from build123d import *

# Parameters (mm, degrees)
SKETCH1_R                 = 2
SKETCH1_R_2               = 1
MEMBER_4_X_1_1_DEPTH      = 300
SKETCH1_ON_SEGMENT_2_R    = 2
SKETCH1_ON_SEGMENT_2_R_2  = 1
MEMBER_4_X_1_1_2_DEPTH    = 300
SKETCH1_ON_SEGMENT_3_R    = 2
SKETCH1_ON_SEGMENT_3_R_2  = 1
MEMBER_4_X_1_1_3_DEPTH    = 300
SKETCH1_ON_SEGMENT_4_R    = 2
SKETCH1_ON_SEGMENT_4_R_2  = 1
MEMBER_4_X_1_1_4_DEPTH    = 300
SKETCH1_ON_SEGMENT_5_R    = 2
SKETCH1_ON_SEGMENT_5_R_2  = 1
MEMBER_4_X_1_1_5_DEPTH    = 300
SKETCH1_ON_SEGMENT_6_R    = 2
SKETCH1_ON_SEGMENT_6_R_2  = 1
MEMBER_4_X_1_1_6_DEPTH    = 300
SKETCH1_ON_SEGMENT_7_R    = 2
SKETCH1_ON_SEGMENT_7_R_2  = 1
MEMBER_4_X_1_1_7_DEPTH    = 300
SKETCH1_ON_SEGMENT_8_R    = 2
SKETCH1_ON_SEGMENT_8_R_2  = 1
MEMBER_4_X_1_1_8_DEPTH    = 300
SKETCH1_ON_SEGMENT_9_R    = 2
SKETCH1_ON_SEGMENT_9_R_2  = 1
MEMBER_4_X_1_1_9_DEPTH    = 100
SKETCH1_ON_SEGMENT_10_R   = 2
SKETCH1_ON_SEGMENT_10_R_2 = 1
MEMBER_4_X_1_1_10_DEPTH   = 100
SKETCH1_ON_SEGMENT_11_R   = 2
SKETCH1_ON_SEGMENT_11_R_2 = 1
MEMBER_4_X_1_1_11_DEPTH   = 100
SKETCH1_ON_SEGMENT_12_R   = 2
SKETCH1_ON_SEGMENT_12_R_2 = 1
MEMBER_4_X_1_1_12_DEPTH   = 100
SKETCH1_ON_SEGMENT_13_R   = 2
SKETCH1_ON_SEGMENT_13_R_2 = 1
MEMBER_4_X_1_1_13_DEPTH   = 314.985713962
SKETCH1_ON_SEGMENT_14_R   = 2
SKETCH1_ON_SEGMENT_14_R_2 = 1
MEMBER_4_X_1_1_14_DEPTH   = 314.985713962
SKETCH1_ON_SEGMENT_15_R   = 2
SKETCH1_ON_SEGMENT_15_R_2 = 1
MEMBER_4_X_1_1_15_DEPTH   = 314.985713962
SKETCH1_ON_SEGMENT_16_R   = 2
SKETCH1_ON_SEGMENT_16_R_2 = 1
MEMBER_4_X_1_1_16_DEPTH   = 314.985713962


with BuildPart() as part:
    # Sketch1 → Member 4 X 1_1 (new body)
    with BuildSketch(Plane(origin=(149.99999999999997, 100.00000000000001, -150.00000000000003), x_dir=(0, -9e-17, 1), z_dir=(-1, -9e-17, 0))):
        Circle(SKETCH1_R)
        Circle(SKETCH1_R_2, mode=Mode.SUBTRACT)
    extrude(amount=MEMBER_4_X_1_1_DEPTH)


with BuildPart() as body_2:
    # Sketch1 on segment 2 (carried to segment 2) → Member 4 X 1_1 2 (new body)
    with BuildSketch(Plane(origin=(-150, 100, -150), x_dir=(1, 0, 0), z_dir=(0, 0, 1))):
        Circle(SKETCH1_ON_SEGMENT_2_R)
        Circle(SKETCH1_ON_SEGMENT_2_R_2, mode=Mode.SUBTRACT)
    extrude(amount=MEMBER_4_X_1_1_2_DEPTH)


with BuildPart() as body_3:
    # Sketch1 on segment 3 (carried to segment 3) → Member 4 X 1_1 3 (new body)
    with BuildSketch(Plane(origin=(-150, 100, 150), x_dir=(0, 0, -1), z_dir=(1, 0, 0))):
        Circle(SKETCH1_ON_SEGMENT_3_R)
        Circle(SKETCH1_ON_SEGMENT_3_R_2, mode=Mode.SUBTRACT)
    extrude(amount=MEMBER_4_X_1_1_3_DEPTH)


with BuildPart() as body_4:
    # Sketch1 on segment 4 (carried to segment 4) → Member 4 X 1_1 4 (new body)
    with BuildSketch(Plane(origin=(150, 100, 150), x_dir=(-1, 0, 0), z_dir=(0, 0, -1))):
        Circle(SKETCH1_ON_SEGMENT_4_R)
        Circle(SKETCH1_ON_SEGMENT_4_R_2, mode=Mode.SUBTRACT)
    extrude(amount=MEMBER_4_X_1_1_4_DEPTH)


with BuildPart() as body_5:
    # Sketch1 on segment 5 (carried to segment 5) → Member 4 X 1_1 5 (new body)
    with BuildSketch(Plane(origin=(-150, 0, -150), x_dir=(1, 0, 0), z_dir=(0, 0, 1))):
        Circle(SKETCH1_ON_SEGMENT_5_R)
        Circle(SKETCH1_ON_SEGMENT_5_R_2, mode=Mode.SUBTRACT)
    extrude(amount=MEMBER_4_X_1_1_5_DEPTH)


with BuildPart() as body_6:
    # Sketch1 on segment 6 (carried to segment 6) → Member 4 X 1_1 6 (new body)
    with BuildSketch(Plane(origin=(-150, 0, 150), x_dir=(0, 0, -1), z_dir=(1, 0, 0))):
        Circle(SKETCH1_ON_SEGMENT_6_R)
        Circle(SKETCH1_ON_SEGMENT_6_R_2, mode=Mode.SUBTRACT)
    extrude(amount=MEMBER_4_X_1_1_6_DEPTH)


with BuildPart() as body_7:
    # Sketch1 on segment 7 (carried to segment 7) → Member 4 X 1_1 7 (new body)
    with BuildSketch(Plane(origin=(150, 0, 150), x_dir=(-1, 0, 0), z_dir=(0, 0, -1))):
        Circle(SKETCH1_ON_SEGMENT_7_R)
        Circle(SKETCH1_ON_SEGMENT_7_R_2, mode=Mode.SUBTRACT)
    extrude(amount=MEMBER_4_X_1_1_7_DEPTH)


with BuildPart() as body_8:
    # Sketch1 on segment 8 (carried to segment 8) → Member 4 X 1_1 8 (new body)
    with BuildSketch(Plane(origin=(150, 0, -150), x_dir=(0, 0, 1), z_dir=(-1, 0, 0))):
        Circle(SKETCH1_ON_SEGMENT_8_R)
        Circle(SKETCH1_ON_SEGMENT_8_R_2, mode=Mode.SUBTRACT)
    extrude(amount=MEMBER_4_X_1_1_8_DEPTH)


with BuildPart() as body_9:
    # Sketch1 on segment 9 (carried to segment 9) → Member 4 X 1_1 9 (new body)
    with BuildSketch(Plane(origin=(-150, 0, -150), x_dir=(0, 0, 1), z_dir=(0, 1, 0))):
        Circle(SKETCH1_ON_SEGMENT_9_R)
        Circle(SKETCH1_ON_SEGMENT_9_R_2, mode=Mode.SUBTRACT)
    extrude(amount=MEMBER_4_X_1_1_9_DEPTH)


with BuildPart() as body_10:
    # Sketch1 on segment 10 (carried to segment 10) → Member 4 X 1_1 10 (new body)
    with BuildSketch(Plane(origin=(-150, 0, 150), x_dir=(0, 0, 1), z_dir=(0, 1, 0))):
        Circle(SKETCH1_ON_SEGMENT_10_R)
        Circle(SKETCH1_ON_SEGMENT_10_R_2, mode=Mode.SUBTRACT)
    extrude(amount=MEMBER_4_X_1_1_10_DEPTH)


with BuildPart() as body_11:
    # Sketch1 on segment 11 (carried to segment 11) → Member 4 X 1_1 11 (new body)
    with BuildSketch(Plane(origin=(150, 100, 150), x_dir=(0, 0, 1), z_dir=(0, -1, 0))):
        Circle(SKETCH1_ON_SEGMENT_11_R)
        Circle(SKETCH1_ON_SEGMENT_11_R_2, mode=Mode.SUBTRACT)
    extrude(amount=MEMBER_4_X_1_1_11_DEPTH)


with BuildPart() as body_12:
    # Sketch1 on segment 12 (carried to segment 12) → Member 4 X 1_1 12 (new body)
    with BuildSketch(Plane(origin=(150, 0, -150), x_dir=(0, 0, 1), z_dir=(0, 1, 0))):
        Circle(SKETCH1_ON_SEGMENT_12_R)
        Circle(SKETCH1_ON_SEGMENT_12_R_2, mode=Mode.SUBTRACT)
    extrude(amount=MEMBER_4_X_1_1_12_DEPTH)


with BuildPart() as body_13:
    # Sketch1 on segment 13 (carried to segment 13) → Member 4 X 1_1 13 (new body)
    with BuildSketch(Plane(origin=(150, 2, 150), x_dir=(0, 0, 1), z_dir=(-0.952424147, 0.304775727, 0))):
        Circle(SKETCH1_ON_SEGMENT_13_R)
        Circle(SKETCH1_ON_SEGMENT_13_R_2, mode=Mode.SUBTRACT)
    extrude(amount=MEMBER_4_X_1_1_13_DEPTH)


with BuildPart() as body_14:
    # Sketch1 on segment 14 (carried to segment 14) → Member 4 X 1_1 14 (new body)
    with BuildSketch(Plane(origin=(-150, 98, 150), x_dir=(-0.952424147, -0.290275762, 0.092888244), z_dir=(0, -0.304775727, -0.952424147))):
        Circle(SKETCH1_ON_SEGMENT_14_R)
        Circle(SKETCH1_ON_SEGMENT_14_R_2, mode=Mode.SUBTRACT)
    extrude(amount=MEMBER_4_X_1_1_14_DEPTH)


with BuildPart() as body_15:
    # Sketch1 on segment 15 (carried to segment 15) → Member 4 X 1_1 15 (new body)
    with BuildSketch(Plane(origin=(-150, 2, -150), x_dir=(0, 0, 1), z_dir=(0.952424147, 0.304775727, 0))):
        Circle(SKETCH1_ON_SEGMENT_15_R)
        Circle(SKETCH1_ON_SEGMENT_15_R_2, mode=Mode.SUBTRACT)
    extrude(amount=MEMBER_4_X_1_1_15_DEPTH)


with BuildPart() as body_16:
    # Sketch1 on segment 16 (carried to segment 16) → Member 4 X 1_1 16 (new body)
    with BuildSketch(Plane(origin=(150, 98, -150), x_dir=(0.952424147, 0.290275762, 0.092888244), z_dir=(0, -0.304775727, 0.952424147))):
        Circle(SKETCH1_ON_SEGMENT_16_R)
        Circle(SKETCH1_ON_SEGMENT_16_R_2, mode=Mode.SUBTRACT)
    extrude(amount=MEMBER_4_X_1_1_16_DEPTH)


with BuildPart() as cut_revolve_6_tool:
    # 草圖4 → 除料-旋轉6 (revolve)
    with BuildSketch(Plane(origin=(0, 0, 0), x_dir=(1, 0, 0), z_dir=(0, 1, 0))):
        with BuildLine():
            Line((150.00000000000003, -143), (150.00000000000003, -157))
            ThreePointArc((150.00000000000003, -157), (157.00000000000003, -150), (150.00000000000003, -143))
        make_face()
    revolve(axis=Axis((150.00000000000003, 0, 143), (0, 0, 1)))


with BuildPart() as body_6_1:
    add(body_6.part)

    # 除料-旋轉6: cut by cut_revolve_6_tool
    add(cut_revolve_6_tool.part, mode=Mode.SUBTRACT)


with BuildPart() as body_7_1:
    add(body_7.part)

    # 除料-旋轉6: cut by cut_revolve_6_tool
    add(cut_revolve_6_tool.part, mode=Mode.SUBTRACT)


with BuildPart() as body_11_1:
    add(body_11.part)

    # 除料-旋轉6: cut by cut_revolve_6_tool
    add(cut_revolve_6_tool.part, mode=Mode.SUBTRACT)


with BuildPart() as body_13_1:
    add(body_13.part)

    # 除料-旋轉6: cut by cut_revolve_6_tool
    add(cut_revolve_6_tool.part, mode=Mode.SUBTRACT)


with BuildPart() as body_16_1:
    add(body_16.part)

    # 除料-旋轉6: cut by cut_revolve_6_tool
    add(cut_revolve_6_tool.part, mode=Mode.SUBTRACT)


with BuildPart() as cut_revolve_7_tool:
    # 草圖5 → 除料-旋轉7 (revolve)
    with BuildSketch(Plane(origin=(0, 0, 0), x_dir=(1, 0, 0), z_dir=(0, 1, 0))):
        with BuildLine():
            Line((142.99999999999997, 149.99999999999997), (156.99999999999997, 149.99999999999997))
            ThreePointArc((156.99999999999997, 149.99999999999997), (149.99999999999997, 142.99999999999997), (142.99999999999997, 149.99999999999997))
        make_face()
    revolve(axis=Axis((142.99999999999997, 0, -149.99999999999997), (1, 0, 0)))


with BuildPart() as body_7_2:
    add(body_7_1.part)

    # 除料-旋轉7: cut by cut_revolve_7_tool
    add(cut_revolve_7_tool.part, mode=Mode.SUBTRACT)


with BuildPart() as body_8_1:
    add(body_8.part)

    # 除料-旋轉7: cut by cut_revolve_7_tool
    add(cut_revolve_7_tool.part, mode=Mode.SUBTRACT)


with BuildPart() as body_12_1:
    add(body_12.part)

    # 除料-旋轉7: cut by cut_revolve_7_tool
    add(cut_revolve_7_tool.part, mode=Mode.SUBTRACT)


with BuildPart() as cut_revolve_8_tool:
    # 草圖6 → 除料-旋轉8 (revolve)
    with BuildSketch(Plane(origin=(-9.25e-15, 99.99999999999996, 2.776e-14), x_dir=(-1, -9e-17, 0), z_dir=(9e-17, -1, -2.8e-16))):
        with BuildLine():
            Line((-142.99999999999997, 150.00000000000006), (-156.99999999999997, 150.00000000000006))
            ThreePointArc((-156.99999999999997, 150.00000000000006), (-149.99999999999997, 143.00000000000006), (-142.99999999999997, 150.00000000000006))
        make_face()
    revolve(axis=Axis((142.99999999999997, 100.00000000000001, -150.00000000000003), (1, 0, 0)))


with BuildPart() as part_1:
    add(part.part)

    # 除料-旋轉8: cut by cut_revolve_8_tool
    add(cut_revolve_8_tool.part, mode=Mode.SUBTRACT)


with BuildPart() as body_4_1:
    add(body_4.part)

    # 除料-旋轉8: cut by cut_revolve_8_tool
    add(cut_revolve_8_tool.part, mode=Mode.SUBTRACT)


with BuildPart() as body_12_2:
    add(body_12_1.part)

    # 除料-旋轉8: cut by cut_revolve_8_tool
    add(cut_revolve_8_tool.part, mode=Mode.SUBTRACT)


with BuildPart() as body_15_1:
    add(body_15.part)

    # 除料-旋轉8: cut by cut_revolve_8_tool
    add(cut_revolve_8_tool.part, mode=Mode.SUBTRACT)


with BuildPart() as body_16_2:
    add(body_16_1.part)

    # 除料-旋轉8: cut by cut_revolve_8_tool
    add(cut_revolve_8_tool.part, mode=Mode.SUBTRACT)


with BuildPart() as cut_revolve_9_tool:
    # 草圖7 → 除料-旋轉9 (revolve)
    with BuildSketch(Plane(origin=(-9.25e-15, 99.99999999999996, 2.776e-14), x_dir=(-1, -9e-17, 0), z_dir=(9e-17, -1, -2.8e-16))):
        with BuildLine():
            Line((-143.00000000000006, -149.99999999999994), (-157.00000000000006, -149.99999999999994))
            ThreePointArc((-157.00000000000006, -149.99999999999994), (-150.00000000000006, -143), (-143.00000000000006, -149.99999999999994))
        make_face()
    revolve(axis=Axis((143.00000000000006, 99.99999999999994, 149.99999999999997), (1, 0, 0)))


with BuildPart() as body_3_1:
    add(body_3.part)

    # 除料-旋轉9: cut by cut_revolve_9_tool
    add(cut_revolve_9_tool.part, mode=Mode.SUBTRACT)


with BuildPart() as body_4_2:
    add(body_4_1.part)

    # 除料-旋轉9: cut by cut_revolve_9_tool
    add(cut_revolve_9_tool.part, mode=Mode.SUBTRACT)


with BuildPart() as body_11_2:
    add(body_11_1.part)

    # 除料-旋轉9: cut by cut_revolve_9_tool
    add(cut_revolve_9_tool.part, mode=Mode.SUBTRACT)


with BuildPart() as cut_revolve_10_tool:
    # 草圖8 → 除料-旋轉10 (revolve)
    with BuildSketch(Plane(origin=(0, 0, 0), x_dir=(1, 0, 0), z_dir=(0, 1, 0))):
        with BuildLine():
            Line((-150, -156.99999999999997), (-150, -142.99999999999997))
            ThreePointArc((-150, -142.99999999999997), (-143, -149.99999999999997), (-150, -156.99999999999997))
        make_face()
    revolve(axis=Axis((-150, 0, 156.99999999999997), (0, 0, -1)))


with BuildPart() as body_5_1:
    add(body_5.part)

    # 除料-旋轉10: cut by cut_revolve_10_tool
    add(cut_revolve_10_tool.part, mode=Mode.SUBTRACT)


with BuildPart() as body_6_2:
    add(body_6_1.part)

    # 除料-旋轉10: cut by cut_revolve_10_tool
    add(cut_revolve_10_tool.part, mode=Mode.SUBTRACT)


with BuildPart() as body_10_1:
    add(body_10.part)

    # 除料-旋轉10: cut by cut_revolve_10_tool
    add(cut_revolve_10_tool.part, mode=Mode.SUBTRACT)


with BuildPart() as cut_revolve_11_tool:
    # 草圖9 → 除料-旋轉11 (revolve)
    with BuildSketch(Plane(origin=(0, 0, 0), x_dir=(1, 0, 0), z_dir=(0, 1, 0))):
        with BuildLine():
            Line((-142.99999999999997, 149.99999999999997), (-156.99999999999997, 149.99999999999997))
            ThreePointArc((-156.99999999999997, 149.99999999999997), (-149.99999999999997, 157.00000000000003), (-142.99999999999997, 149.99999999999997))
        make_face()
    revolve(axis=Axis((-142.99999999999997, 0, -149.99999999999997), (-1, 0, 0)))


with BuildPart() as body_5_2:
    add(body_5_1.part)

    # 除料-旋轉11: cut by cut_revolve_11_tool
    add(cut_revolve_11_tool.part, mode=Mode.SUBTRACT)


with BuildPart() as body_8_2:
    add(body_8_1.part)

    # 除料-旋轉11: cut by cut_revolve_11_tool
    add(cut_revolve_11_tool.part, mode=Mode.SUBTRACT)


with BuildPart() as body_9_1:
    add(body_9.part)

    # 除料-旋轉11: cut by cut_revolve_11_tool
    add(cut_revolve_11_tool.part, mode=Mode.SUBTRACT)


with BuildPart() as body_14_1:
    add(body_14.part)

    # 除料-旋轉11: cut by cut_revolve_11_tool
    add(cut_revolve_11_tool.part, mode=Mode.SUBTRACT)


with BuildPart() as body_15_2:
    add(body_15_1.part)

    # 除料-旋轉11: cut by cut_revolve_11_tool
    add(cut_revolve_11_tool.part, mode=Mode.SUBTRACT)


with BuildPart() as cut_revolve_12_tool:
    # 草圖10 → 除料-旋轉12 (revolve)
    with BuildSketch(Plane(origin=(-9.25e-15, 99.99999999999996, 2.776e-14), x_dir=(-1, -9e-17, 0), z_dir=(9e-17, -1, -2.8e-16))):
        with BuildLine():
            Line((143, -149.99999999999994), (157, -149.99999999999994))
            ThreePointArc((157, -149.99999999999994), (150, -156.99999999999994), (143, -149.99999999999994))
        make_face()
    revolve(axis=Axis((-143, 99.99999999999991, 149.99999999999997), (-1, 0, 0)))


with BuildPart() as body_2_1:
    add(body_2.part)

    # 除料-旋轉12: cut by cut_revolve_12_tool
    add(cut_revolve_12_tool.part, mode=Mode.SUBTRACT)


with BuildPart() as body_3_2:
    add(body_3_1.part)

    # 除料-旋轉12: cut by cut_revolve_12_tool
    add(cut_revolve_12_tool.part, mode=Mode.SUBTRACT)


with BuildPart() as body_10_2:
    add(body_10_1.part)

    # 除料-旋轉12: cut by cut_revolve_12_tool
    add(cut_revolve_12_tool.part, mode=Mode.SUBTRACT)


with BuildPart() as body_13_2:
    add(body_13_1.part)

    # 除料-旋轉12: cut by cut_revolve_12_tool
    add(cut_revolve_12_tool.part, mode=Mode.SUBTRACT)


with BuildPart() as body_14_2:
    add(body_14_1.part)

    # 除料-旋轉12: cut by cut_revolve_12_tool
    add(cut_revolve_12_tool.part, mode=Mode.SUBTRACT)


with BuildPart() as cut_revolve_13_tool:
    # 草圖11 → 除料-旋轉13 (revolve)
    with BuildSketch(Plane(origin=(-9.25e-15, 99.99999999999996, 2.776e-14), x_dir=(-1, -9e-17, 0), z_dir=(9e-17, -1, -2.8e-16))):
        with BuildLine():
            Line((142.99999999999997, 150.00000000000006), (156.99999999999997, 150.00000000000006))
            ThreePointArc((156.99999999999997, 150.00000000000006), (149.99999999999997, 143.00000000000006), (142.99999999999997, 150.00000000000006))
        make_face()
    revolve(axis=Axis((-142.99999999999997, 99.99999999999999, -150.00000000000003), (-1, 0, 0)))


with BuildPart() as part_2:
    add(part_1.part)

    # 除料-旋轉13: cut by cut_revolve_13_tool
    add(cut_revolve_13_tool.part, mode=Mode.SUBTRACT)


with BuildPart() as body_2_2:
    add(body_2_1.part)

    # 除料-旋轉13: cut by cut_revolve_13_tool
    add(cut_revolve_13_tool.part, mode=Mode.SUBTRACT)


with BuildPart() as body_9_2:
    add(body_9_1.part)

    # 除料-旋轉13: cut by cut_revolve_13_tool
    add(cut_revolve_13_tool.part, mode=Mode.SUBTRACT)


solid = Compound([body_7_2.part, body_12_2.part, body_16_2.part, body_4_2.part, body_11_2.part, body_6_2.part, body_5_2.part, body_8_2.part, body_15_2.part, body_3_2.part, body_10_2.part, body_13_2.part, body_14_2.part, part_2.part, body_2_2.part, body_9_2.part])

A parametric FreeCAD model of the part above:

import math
import FreeCAD as App
import Part
import Sketcher
from FreeCAD import Vector

doc = App.newDocument("Part")
body = doc.addObject("PartDesign::Body", "Body")

sketch1 = body.newObject("Sketcher::SketchObject", "Sketch")
sketch1.AttachmentSupport = (doc.getObject("YZ_Plane"), [""])
sketch1.MapMode = "FlatFace"
sketch1.AttachmentOffset = App.Placement(Vector(0, 0, 150), App.Rotation())
sketch1.addGeometry([
    Part.Circle(Vector(100, -150, 0), Vector(0, 0, 1), 2),
    Part.Circle(Vector(100, -150, 0), Vector(0, 0, 1), 1),
], False)
sketch1.addConstraint([
    Sketcher.Constraint("Coincident", 1, 3, 0, 3),
    Sketcher.Constraint("Diameter", 0, 4.0),
    Sketcher.Constraint("Diameter", 1, 2.0),
    Sketcher.Constraint("DistanceX", -1, 1, 0, 3, 100.0),
    Sketcher.Constraint("DistanceY", 0, 3, -1, 1, 150.0),
])
pad1 = body.newObject("PartDesign::Pad", "Pad")
pad1.Profile = sketch1
pad1.Length = 300
pad1.Reversed = True
body2 = doc.addObject("PartDesign::Body", "Body001")

sketch2 = body2.newObject("Sketcher::SketchObject", "Sketch001")
sketch2.AttachmentSupport = (doc.getObject("XY_Plane001"), [""])
sketch2.MapMode = "FlatFace"
sketch2.AttachmentOffset = App.Placement(Vector(0, 0, -150), App.Rotation())
sketch2.addGeometry([
    Part.Circle(Vector(-150, 100, 0), Vector(0, 0, 1), 2),
    Part.Circle(Vector(-150, 100, 0), Vector(0, 0, 1), 1),
], False)
sketch2.addConstraint([
    Sketcher.Constraint("Coincident", 1, 3, 0, 3),
    Sketcher.Constraint("Diameter", 0, 4.0),
    Sketcher.Constraint("Diameter", 1, 2.0),
    Sketcher.Constraint("DistanceX", 0, 3, -1, 1, 150.0),
    Sketcher.Constraint("DistanceY", -1, 1, 0, 3, 100.0),
])
pad2 = body2.newObject("PartDesign::Pad", "Pad001")
pad2.Profile = sketch2
pad2.Length = 300
body3 = doc.addObject("PartDesign::Body", "Body002")

sketch3 = body3.newObject("Sketcher::SketchObject", "Sketch002")
sketch3.AttachmentSupport = (doc.getObject("YZ_Plane002"), [""])
sketch3.MapMode = "FlatFace"
sketch3.AttachmentOffset = App.Placement(Vector(0, 0, -150), App.Rotation())
sketch3.addGeometry([
    Part.Circle(Vector(100, 150, 0), Vector(0, 0, 1), 2),
    Part.Circle(Vector(100, 150, 0), Vector(0, 0, 1), 1),
], False)
sketch3.addConstraint([
    Sketcher.Constraint("Coincident", 1, 3, 0, 3),
    Sketcher.Constraint("Diameter", 0, 4.0),
    Sketcher.Constraint("Diameter", 1, 2.0),
    Sketcher.Constraint("DistanceX", -1, 1, 0, 3, 100.0),
    Sketcher.Constraint("DistanceY", -1, 1, 0, 3, 150.0),
])
pad3 = body3.newObject("PartDesign::Pad", "Pad002")
pad3.Profile = sketch3
pad3.Length = 300
body4 = doc.addObject("PartDesign::Body", "Body003")

sketch4 = body4.newObject("Sketcher::SketchObject", "Sketch003")
sketch4.AttachmentSupport = (doc.getObject("XY_Plane003"), [""])
sketch4.MapMode = "FlatFace"
sketch4.AttachmentOffset = App.Placement(Vector(0, 0, 150), App.Rotation())
sketch4.addGeometry([
    Part.Circle(Vector(150, 100, 0), Vector(0, 0, 1), 2),
    Part.Circle(Vector(150, 100, 0), Vector(0, 0, 1), 1),
], False)
sketch4.addConstraint([
    Sketcher.Constraint("Coincident", 1, 3, 0, 3),
    Sketcher.Constraint("Diameter", 0, 4.0),
    Sketcher.Constraint("Diameter", 1, 2.0),
    Sketcher.Constraint("DistanceX", -1, 1, 0, 3, 150.0),
    Sketcher.Constraint("DistanceY", -1, 1, 0, 3, 100.0),
])
pad4 = body4.newObject("PartDesign::Pad", "Pad003")
pad4.Profile = sketch4
pad4.Length = 300
pad4.Reversed = True
body5 = doc.addObject("PartDesign::Body", "Body004")

sketch5 = body5.newObject("Sketcher::SketchObject", "Sketch004")
sketch5.AttachmentSupport = (doc.getObject("XY_Plane004"), [""])
sketch5.MapMode = "FlatFace"
sketch5.AttachmentOffset = App.Placement(Vector(0, 0, -150), App.Rotation())
sketch5.addGeometry([
    Part.Circle(Vector(-150, 0, 0), Vector(0, 0, 1), 2),
    Part.Circle(Vector(-150, 0, 0), Vector(0, 0, 1), 1),
], False)
sketch5.addConstraint([
    Sketcher.Constraint("Coincident", 1, 3, 0, 3),
    Sketcher.Constraint("PointOnObject", 0, 3, -1),
    Sketcher.Constraint("Diameter", 0, 4.0),
    Sketcher.Constraint("Diameter", 1, 2.0),
    Sketcher.Constraint("DistanceX", 0, 3, -1, 1, 150.0),
])
pad5 = body5.newObject("PartDesign::Pad", "Pad004")
pad5.Profile = sketch5
pad5.Length = 300
body6 = doc.addObject("PartDesign::Body", "Body005")

sketch6 = body6.newObject("Sketcher::SketchObject", "Sketch005")
sketch6.AttachmentSupport = (doc.getObject("YZ_Plane005"), [""])
sketch6.MapMode = "FlatFace"
sketch6.AttachmentOffset = App.Placement(Vector(0, 0, -150), App.Rotation())
sketch6.addGeometry([
    Part.Circle(Vector(0, 150, 0), Vector(0, 0, 1), 2),
    Part.Circle(Vector(0, 150, 0), Vector(0, 0, 1), 1),
], False)
sketch6.addConstraint([
    Sketcher.Constraint("Coincident", 1, 3, 0, 3),
    Sketcher.Constraint("PointOnObject", 0, 3, -2),
    Sketcher.Constraint("Diameter", 0, 4.0),
    Sketcher.Constraint("Diameter", 1, 2.0),
    Sketcher.Constraint("DistanceY", -1, 1, 0, 3, 150.0),
])
pad6 = body6.newObject("PartDesign::Pad", "Pad005")
pad6.Profile = sketch6
pad6.Length = 300
body7 = doc.addObject("PartDesign::Body", "Body006")

sketch7 = body7.newObject("Sketcher::SketchObject", "Sketch006")
sketch7.AttachmentSupport = (doc.getObject("XY_Plane006"), [""])
sketch7.MapMode = "FlatFace"
sketch7.AttachmentOffset = App.Placement(Vector(0, 0, 150), App.Rotation())
sketch7.addGeometry([
    Part.Circle(Vector(150, 0, 0), Vector(0, 0, 1), 2),
    Part.Circle(Vector(150, 0, 0), Vector(0, 0, 1), 1),
], False)
sketch7.addConstraint([
    Sketcher.Constraint("Coincident", 1, 3, 0, 3),
    Sketcher.Constraint("PointOnObject", 0, 3, -1),
    Sketcher.Constraint("Diameter", 0, 4.0),
    Sketcher.Constraint("Diameter", 1, 2.0),
    Sketcher.Constraint("DistanceX", -1, 1, 0, 3, 150.0),
])
pad7 = body7.newObject("PartDesign::Pad", "Pad006")
pad7.Profile = sketch7
pad7.Length = 300
pad7.Reversed = True
body8 = doc.addObject("PartDesign::Body", "Body007")

sketch8 = body8.newObject("Sketcher::SketchObject", "Sketch007")
sketch8.AttachmentSupport = (doc.getObject("YZ_Plane007"), [""])
sketch8.MapMode = "FlatFace"
sketch8.AttachmentOffset = App.Placement(Vector(0, 0, 150), App.Rotation())
sketch8.addGeometry([
    Part.Circle(Vector(0, -150, 0), Vector(0, 0, 1), 2),
    Part.Circle(Vector(0, -150, 0), Vector(0, 0, 1), 1),
], False)
sketch8.addConstraint([
    Sketcher.Constraint("Coincident", 1, 3, 0, 3),
    Sketcher.Constraint("PointOnObject", 0, 3, -2),
    Sketcher.Constraint("Diameter", 0, 4.0),
    Sketcher.Constraint("Diameter", 1, 2.0),
    Sketcher.Constraint("DistanceY", 0, 3, -1, 1, 150.0),
])
pad8 = body8.newObject("PartDesign::Pad", "Pad007")
pad8.Profile = sketch8
pad8.Length = 300
pad8.Reversed = True
body9 = doc.addObject("PartDesign::Body", "Body008")

sketch9 = body9.newObject("Sketcher::SketchObject", "Sketch008")
sketch9.AttachmentSupport = (doc.getObject("XZ_Plane008"), [""])
sketch9.MapMode = "FlatFace"
sketch9.addGeometry([
    Part.Circle(Vector(-150, -150, 0), Vector(0, 0, 1), 2),
    Part.Circle(Vector(-150, -150, 0), Vector(0, 0, 1), 1),
], False)
sketch9.addConstraint([
    Sketcher.Constraint("Coincident", 1, 3, 0, 3),
    Sketcher.Constraint("Diameter", 0, 4.0),
    Sketcher.Constraint("Diameter", 1, 2.0),
    Sketcher.Constraint("DistanceX", 0, 3, -1, 1, 150.0),
    Sketcher.Constraint("DistanceY", 0, 3, -1, 1, 150.0),
])
pad9 = body9.newObject("PartDesign::Pad", "Pad008")
pad9.Profile = sketch9
pad9.Length = 100
pad9.Reversed = True
body10 = doc.addObject("PartDesign::Body", "Body009")

sketch10 = body10.newObject("Sketcher::SketchObject", "Sketch009")
sketch10.AttachmentSupport = (doc.getObject("XZ_Plane009"), [""])
sketch10.MapMode = "FlatFace"
sketch10.addGeometry([
    Part.Circle(Vector(-150, 150, 0), Vector(0, 0, 1), 2),
    Part.Circle(Vector(-150, 150, 0), Vector(0, 0, 1), 1),
], False)
sketch10.addConstraint([
    Sketcher.Constraint("Coincident", 1, 3, 0, 3),
    Sketcher.Constraint("Diameter", 0, 4.0),
    Sketcher.Constraint("Diameter", 1, 2.0),
    Sketcher.Constraint("DistanceX", 0, 3, -1, 1, 150.0),
    Sketcher.Constraint("DistanceY", -1, 1, 0, 3, 150.0),
])
pad10 = body10.newObject("PartDesign::Pad", "Pad009")
pad10.Profile = sketch10
pad10.Length = 100
pad10.Reversed = True
body11 = doc.addObject("PartDesign::Body", "Body010")

sketch11 = body11.newObject("Sketcher::SketchObject", "Sketch010")
sketch11.AttachmentSupport = (doc.getObject("XZ_Plane010"), [""])
sketch11.MapMode = "FlatFace"
sketch11.AttachmentOffset = App.Placement(Vector(0, 0, -100), App.Rotation())
sketch11.addGeometry([
    Part.Circle(Vector(150, 150, 0), Vector(0, 0, 1), 2),
    Part.Circle(Vector(150, 150, 0), Vector(0, 0, 1), 1),
], False)
sketch11.addConstraint([
    Sketcher.Constraint("Coincident", 1, 3, 0, 3),
    Sketcher.Constraint("Diameter", 0, 4.0),
    Sketcher.Constraint("Diameter", 1, 2.0),
    Sketcher.Constraint("DistanceX", -1, 1, 0, 3, 150.0),
    Sketcher.Constraint("DistanceY", -1, 1, 0, 3, 150.0),
])
pad11 = body11.newObject("PartDesign::Pad", "Pad010")
pad11.Profile = sketch11
pad11.Length = 100
body12 = doc.addObject("PartDesign::Body", "Body011")

sketch12 = body12.newObject("Sketcher::SketchObject", "Sketch011")
sketch12.AttachmentSupport = (doc.getObject("XZ_Plane011"), [""])
sketch12.MapMode = "FlatFace"
sketch12.addGeometry([
    Part.Circle(Vector(150, -150, 0), Vector(0, 0, 1), 2),
    Part.Circle(Vector(150, -150, 0), Vector(0, 0, 1), 1),
], False)
sketch12.addConstraint([
    Sketcher.Constraint("Coincident", 1, 3, 0, 3),
    Sketcher.Constraint("Diameter", 0, 4.0),
    Sketcher.Constraint("Diameter", 1, 2.0),
    Sketcher.Constraint("DistanceX", -1, 1, 0, 3, 150.0),
    Sketcher.Constraint("DistanceY", 0, 3, -1, 1, 150.0),
])
pad12 = body12.newObject("PartDesign::Pad", "Pad011")
pad12.Profile = sketch12
pad12.Length = 100
pad12.Reversed = True
body13 = doc.addObject("PartDesign::Body", "Body012")

sketch13 = body13.newObject("Sketcher::SketchObject", "Sketch012")
sketch13.Placement = App.Placement(Vector(150, 2, 150), App.Rotation(Vector(0, 0, 1), Vector(0.304775727, 0.952424147, 0), Vector(-0.952424147, 0.304775727, 0), "ZXY"))
sketch13.addGeometry([
    Part.Circle(Vector(0, 0, 0), Vector(0, 0, 1), 2),
    Part.Circle(Vector(0, 0, 0), Vector(0, 0, 1), 1),
], False)
sketch13.addConstraint([
    Sketcher.Constraint("Coincident", 0, 3, -1, 1),
    Sketcher.Constraint("Coincident", 1, 3, -1, 1),
    Sketcher.Constraint("Diameter", 0, 4.0),
    Sketcher.Constraint("Diameter", 1, 2.0),
])
pad13 = body13.newObject("PartDesign::Pad", "Pad012")
pad13.Profile = sketch13
pad13.Length = 314.985714
body14 = doc.addObject("PartDesign::Body", "Body013")

sketch14 = body14.newObject("Sketcher::SketchObject", "Sketch013")
sketch14.Placement = App.Placement(Vector(-150, 98, 150), App.Rotation(Vector(-0.952424147, -0.290275762, 0.092888244), Vector(-0.304775727, 0.907111756, -0.290275762), Vector(0, -0.304775727, -0.952424147), "ZXY"))
sketch14.addGeometry([
    Part.Circle(Vector(0, 0, 0), Vector(0, 0, 1), 2),
    Part.Circle(Vector(0, 0, 0), Vector(0, 0, 1), 1),
], False)
sketch14.addConstraint([
    Sketcher.Constraint("Coincident", 0, 3, -1, 1),
    Sketcher.Constraint("Coincident", 1, 3, -1, 1),
    Sketcher.Constraint("Diameter", 0, 4.0),
    Sketcher.Constraint("Diameter", 1, 2.0),
])
pad14 = body14.newObject("PartDesign::Pad", "Pad013")
pad14.Profile = sketch14
pad14.Length = 314.985714
body15 = doc.addObject("PartDesign::Body", "Body014")

sketch15 = body15.newObject("Sketcher::SketchObject", "Sketch014")
sketch15.Placement = App.Placement(Vector(-150, 2, -150), App.Rotation(Vector(0, 0, 1), Vector(0.304775727, -0.952424147, 0), Vector(0.952424147, 0.304775727, 0), "ZXY"))
sketch15.addGeometry([
    Part.Circle(Vector(0, 0, 0), Vector(0, 0, 1), 2),
    Part.Circle(Vector(0, 0, 0), Vector(0, 0, 1), 1),
], False)
sketch15.addConstraint([
    Sketcher.Constraint("Coincident", 0, 3, -1, 1),
    Sketcher.Constraint("Coincident", 1, 3, -1, 1),
    Sketcher.Constraint("Diameter", 0, 4.0),
    Sketcher.Constraint("Diameter", 1, 2.0),
])
pad15 = body15.newObject("PartDesign::Pad", "Pad014")
pad15.Profile = sketch15
pad15.Length = 314.985714
body16 = doc.addObject("PartDesign::Body", "Body015")

sketch16 = body16.newObject("Sketcher::SketchObject", "Sketch015")
sketch16.Placement = App.Placement(Vector(150, 98, -150), App.Rotation(Vector(0.952424147, 0.290275762, 0.092888244), Vector(-0.304775727, 0.907111756, 0.290275762), Vector(0, -0.304775727, 0.952424147), "ZXY"))
sketch16.addGeometry([
    Part.Circle(Vector(0, 0, 0), Vector(0, 0, 1), 2),
    Part.Circle(Vector(0, 0, 0), Vector(0, 0, 1), 1),
], False)
sketch16.addConstraint([
    Sketcher.Constraint("Coincident", 0, 3, -1, 1),
    Sketcher.Constraint("Coincident", 1, 3, -1, 1),
    Sketcher.Constraint("Diameter", 0, 4.0),
    Sketcher.Constraint("Diameter", 1, 2.0),
])
pad16 = body16.newObject("PartDesign::Pad", "Pad015")
pad16.Profile = sketch16
pad16.Length = 314.985714
body17 = doc.addObject("PartDesign::Body", "Body016")

sketch17 = body17.newObject("Sketcher::SketchObject", "Sketch016")
sketch17.AttachmentSupport = (doc.getObject("XZ_Plane016"), [""])
sketch17.MapMode = "FlatFace"
sketch17.addGeometry([
    Part.LineSegment(Vector(150, 143, 0), Vector(150, 157, 0)),
    Part.ArcOfCircle(Part.Circle(Vector(150, 150, 0), Vector(0, 0, 1), 7), math.radians(-90), math.radians(90)),
], False)
sketch17.addGeometry(Part.LineSegment(Vector(150, 143, 0), Vector(150, 157, 0)), True)
sketch17.addConstraint([
    Sketcher.Constraint("Coincident", 0, 1, 1, 1),
    Sketcher.Constraint("Coincident", 1, 2, 0, 2),
    Sketcher.Constraint("Vertical", 0),
    Sketcher.Constraint("Vertical", 2),
    Sketcher.Constraint("Coincident", 2, 1, 0, 1),
    Sketcher.Constraint("Vertical", 1, 3, 0, 1),
    Sketcher.Constraint("Equal", 0, 2),
    Sketcher.Constraint("Radius", 1, 7.0),
    Sketcher.Constraint("DistanceX", -1, 1, 1, 3, 150.0),
    Sketcher.Constraint("DistanceY", -1, 1, 1, 3, 150.0),
])
revolution = body17.newObject("PartDesign::Revolution", "Revolution")
revolution.Profile = sketch17
revolution.ReferenceAxis = (sketch17, ["Axis0"])
revolution.Angle = 360
doc.recompute()

body18 = doc.addObject("PartDesign::Body", "Body017")
body18.BaseFeature = body17
boolean = body6.newObject("PartDesign::Boolean", "Boolean")
boolean.Type = "Cut"
boolean.addObjects([body18])
doc.recompute()

body19 = doc.addObject("PartDesign::Body", "Body018")
body19.BaseFeature = body17
boolean2 = body7.newObject("PartDesign::Boolean", "Boolean001")
boolean2.Type = "Cut"
boolean2.addObjects([body19])
doc.recompute()

body20 = doc.addObject("PartDesign::Body", "Body019")
body20.BaseFeature = body17
boolean3 = body11.newObject("PartDesign::Boolean", "Boolean002")
boolean3.Type = "Cut"
boolean3.addObjects([body20])
doc.recompute()

body21 = doc.addObject("PartDesign::Body", "Body020")
body21.BaseFeature = body17
boolean4 = body13.newObject("PartDesign::Boolean", "Boolean003")
boolean4.Type = "Cut"
boolean4.addObjects([body21])
doc.recompute()

boolean5 = body16.newObject("PartDesign::Boolean", "Boolean004")
boolean5.Type = "Cut"
boolean5.addObjects([body17])
body22 = doc.addObject("PartDesign::Body", "Body021")

sketch18 = body22.newObject("Sketcher::SketchObject", "Sketch017")
sketch18.AttachmentSupport = (doc.getObject("XZ_Plane021"), [""])
sketch18.MapMode = "FlatFace"
sketch18.addGeometry([
    Part.LineSegment(Vector(157, -150, 0), Vector(143, -150, 0)),
    Part.ArcOfCircle(Part.Circle(Vector(150, -150, 0), Vector(0, 0, 1), 7), math.radians(0), math.radians(180)),
], False)
sketch18.addGeometry(Part.LineSegment(Vector(143, -150, 0), Vector(157, -150, 0)), True)
sketch18.addConstraint([
    Sketcher.Constraint("Coincident", 0, 1, 1, 1),
    Sketcher.Constraint("Coincident", 1, 2, 0, 2),
    Sketcher.Constraint("Horizontal", 0),
    Sketcher.Constraint("Horizontal", 2),
    Sketcher.Constraint("Coincident", 2, 1, 1, 2),
    Sketcher.Constraint("Horizontal", 1, 3, 0, 1),
    Sketcher.Constraint("Equal", 0, 2),
    Sketcher.Constraint("Radius", 1, 7.0),
    Sketcher.Constraint("DistanceX", -1, 1, 1, 3, 150.0),
    Sketcher.Constraint("DistanceY", 1, 3, -1, 1, 150.0),
])
revolution2 = body22.newObject("PartDesign::Revolution", "Revolution001")
revolution2.Profile = sketch18
revolution2.ReferenceAxis = (sketch18, ["Axis0"])
revolution2.Angle = 360
doc.recompute()

body23 = doc.addObject("PartDesign::Body", "Body022")
body23.BaseFeature = body22
boolean6 = body7.newObject("PartDesign::Boolean", "Boolean005")
boolean6.Type = "Cut"
boolean6.addObjects([body23])
doc.recompute()

body24 = doc.addObject("PartDesign::Body", "Body023")
body24.BaseFeature = body22
boolean7 = body8.newObject("PartDesign::Boolean", "Boolean006")
boolean7.Type = "Cut"
boolean7.addObjects([body24])
doc.recompute()

boolean8 = body12.newObject("PartDesign::Boolean", "Boolean007")
boolean8.Type = "Cut"
boolean8.addObjects([body22])
body25 = doc.addObject("PartDesign::Body", "Body024")

sketch19 = body25.newObject("Sketcher::SketchObject", "Sketch018")
sketch19.AttachmentSupport = (doc.getObject("XZ_Plane024"), [""])
sketch19.MapMode = "FlatFace"
sketch19.AttachmentOffset = App.Placement(Vector(0, 0, -100), App.Rotation())
sketch19.addGeometry([
    Part.LineSegment(Vector(143, -150, 0), Vector(157, -150, 0)),
    Part.ArcOfCircle(Part.Circle(Vector(150, -150, 0), Vector(0, 0, 1), 7), math.radians(0), math.radians(180)),
], False)
sketch19.addGeometry(Part.LineSegment(Vector(143, -150, 0), Vector(157, -150, 0)), True)
sketch19.addConstraint([
    Sketcher.Constraint("Coincident", 0, 1, 1, 2),
    Sketcher.Constraint("Coincident", 1, 1, 0, 2),
    Sketcher.Constraint("Horizontal", 0),
    Sketcher.Constraint("Horizontal", 2),
    Sketcher.Constraint("Coincident", 2, 1, 0, 1),
    Sketcher.Constraint("Horizontal", 1, 3, 0, 1),
    Sketcher.Constraint("Equal", 0, 2),
    Sketcher.Constraint("Radius", 1, 7.0),
    Sketcher.Constraint("DistanceX", -1, 1, 1, 3, 150.0),
    Sketcher.Constraint("DistanceY", 1, 3, -1, 1, 150.0),
])
revolution3 = body25.newObject("PartDesign::Revolution", "Revolution002")
revolution3.Profile = sketch19
revolution3.ReferenceAxis = (sketch19, ["Axis0"])
revolution3.Angle = 360
doc.recompute()

body26 = doc.addObject("PartDesign::Body", "Body025")
body26.BaseFeature = body25
boolean9 = body.newObject("PartDesign::Boolean", "Boolean008")
boolean9.Type = "Cut"
boolean9.addObjects([body26])
doc.recompute()

body27 = doc.addObject("PartDesign::Body", "Body026")
body27.BaseFeature = body25
boolean10 = body4.newObject("PartDesign::Boolean", "Boolean009")
boolean10.Type = "Cut"
boolean10.addObjects([body27])
doc.recompute()

body28 = doc.addObject("PartDesign::Body", "Body027")
body28.BaseFeature = body25
boolean11 = body12.newObject("PartDesign::Boolean", "Boolean010")
boolean11.Type = "Cut"
boolean11.addObjects([body28])
doc.recompute()

body29 = doc.addObject("PartDesign::Body", "Body028")
body29.BaseFeature = body25
boolean12 = body15.newObject("PartDesign::Boolean", "Boolean011")
boolean12.Type = "Cut"
boolean12.addObjects([body29])
doc.recompute()

boolean13 = body16.newObject("PartDesign::Boolean", "Boolean012")
boolean13.Type = "Cut"
boolean13.addObjects([body25])
body30 = doc.addObject("PartDesign::Body", "Body029")

sketch20 = body30.newObject("Sketcher::SketchObject", "Sketch019")
sketch20.AttachmentSupport = (doc.getObject("XZ_Plane029"), [""])
sketch20.MapMode = "FlatFace"
sketch20.AttachmentOffset = App.Placement(Vector(0, 0, -100), App.Rotation())
sketch20.addGeometry([
    Part.LineSegment(Vector(157, 150, 0), Vector(143, 150, 0)),
    Part.ArcOfCircle(Part.Circle(Vector(150, 150, 0), Vector(0, 0, 1), 7), math.radians(180), math.radians(360)),
], False)
sketch20.addGeometry(Part.LineSegment(Vector(143, 150, 0), Vector(157, 150, 0)), True)
sketch20.addConstraint([
    Sketcher.Constraint("Coincident", 0, 1, 1, 2),
    Sketcher.Constraint("Coincident", 1, 1, 0, 2),
    Sketcher.Constraint("Horizontal", 0),
    Sketcher.Constraint("Horizontal", 2),
    Sketcher.Constraint("Coincident", 2, 1, 1, 1),
    Sketcher.Constraint("Horizontal", 1, 3, 0, 1),
    Sketcher.Constraint("Equal", 0, 2),
    Sketcher.Constraint("Radius", 1, 7.0),
    Sketcher.Constraint("DistanceX", -1, 1, 1, 3, 150.0),
    Sketcher.Constraint("DistanceY", -1, 1, 1, 3, 150.0),
])
revolution4 = body30.newObject("PartDesign::Revolution", "Revolution003")
revolution4.Profile = sketch20
revolution4.ReferenceAxis = (sketch20, ["Axis0"])
revolution4.Angle = 360
doc.recompute()

body31 = doc.addObject("PartDesign::Body", "Body030")
body31.BaseFeature = body30
boolean14 = body3.newObject("PartDesign::Boolean", "Boolean013")
boolean14.Type = "Cut"
boolean14.addObjects([body31])
doc.recompute()

body32 = doc.addObject("PartDesign::Body", "Body031")
body32.BaseFeature = body30
boolean15 = body4.newObject("PartDesign::Boolean", "Boolean014")
boolean15.Type = "Cut"
boolean15.addObjects([body32])
doc.recompute()

boolean16 = body11.newObject("PartDesign::Boolean", "Boolean015")
boolean16.Type = "Cut"
boolean16.addObjects([body30])
body33 = doc.addObject("PartDesign::Body", "Body032")

sketch21 = body33.newObject("Sketcher::SketchObject", "Sketch020")
sketch21.AttachmentSupport = (doc.getObject("XZ_Plane032"), [""])
sketch21.MapMode = "FlatFace"
sketch21.addGeometry([
    Part.LineSegment(Vector(-150, 143, 0), Vector(-150, 157, 0)),
    Part.ArcOfCircle(Part.Circle(Vector(-150, 150, 0), Vector(0, 0, 1), 7), math.radians(-90), math.radians(90)),
], False)
sketch21.addGeometry(Part.LineSegment(Vector(-150, 157, 0), Vector(-150, 143, 0)), True)
sketch21.addConstraint([
    Sketcher.Constraint("Coincident", 0, 1, 1, 1),
    Sketcher.Constraint("Coincident", 1, 2, 0, 2),
    Sketcher.Constraint("Vertical", 0),
    Sketcher.Constraint("Vertical", 2),
    Sketcher.Constraint("Coincident", 2, 1, 1, 2),
    Sketcher.Constraint("Vertical", 1, 3, 0, 1),
    Sketcher.Constraint("Equal", 0, 2),
    Sketcher.Constraint("Radius", 1, 7.0),
    Sketcher.Constraint("DistanceX", 1, 3, -1, 1, 150.0),
    Sketcher.Constraint("DistanceY", -1, 1, 1, 3, 150.0),
])
revolution5 = body33.newObject("PartDesign::Revolution", "Revolution004")
revolution5.Profile = sketch21
revolution5.ReferenceAxis = (sketch21, ["Axis0"])
revolution5.Angle = 360
doc.recompute()

body34 = doc.addObject("PartDesign::Body", "Body033")
body34.BaseFeature = body33
boolean17 = body5.newObject("PartDesign::Boolean", "Boolean016")
boolean17.Type = "Cut"
boolean17.addObjects([body34])
doc.recompute()

body35 = doc.addObject("PartDesign::Body", "Body034")
body35.BaseFeature = body33
boolean18 = body6.newObject("PartDesign::Boolean", "Boolean017")
boolean18.Type = "Cut"
boolean18.addObjects([body35])
doc.recompute()

boolean19 = body10.newObject("PartDesign::Boolean", "Boolean018")
boolean19.Type = "Cut"
boolean19.addObjects([body33])
body36 = doc.addObject("PartDesign::Body", "Body035")

sketch22 = body36.newObject("Sketcher::SketchObject", "Sketch021")
sketch22.AttachmentSupport = (doc.getObject("XZ_Plane035"), [""])
sketch22.MapMode = "FlatFace"
sketch22.addGeometry([
    Part.LineSegment(Vector(-157, -150, 0), Vector(-143, -150, 0)),
    Part.ArcOfCircle(Part.Circle(Vector(-150, -150, 0), Vector(0, 0, 1), 7), math.radians(180), math.radians(360)),
], False)
sketch22.addGeometry(Part.LineSegment(Vector(-143, -150, 0), Vector(-157, -150, 0)), True)
sketch22.addConstraint([
    Sketcher.Constraint("Coincident", 0, 1, 1, 1),
    Sketcher.Constraint("Coincident", 1, 2, 0, 2),
    Sketcher.Constraint("Horizontal", 0),
    Sketcher.Constraint("Horizontal", 2),
    Sketcher.Constraint("Coincident", 2, 1, 1, 2),
    Sketcher.Constraint("Horizontal", 1, 3, 0, 1),
    Sketcher.Constraint("Equal", 0, 2),
    Sketcher.Constraint("Radius", 1, 7.0),
    Sketcher.Constraint("DistanceX", 1, 3, -1, 1, 150.0),
    Sketcher.Constraint("DistanceY", 1, 3, -1, 1, 150.0),
])
revolution6 = body36.newObject("PartDesign::Revolution", "Revolution005")
revolution6.Profile = sketch22
revolution6.ReferenceAxis = (sketch22, ["Axis0"])
revolution6.Angle = 360
doc.recompute()

body37 = doc.addObject("PartDesign::Body", "Body036")
body37.BaseFeature = body36
boolean20 = body5.newObject("PartDesign::Boolean", "Boolean019")
boolean20.Type = "Cut"
boolean20.addObjects([body37])
doc.recompute()

body38 = doc.addObject("PartDesign::Body", "Body037")
body38.BaseFeature = body36
boolean21 = body8.newObject("PartDesign::Boolean", "Boolean020")
boolean21.Type = "Cut"
boolean21.addObjects([body38])
doc.recompute()

body39 = doc.addObject("PartDesign::Body", "Body038")
body39.BaseFeature = body36
boolean22 = body9.newObject("PartDesign::Boolean", "Boolean021")
boolean22.Type = "Cut"
boolean22.addObjects([body39])
doc.recompute()

body40 = doc.addObject("PartDesign::Body", "Body039")
body40.BaseFeature = body36
boolean23 = body14.newObject("PartDesign::Boolean", "Boolean022")
boolean23.Type = "Cut"
boolean23.addObjects([body40])
doc.recompute()

boolean24 = body15.newObject("PartDesign::Boolean", "Boolean023")
boolean24.Type = "Cut"
boolean24.addObjects([body36])
body41 = doc.addObject("PartDesign::Body", "Body040")

sketch23 = body41.newObject("Sketcher::SketchObject", "Sketch022")
sketch23.AttachmentSupport = (doc.getObject("XZ_Plane040"), [""])
sketch23.MapMode = "FlatFace"
sketch23.AttachmentOffset = App.Placement(Vector(0, 0, -100), App.Rotation())
sketch23.addGeometry([
    Part.LineSegment(Vector(-157, 150, 0), Vector(-143, 150, 0)),
    Part.ArcOfCircle(Part.Circle(Vector(-150, 150, 0), Vector(0, 0, 1), 7), math.radians(0), math.radians(180)),
], False)
sketch23.addGeometry(Part.LineSegment(Vector(-143, 150, 0), Vector(-157, 150, 0)), True)
sketch23.addConstraint([
    Sketcher.Constraint("Coincident", 0, 1, 1, 2),
    Sketcher.Constraint("Coincident", 1, 1, 0, 2),
    Sketcher.Constraint("Horizontal", 0),
    Sketcher.Constraint("Horizontal", 2),
    Sketcher.Constraint("Coincident", 2, 1, 1, 1),
    Sketcher.Constraint("Horizontal", 1, 3, 0, 1),
    Sketcher.Constraint("Equal", 0, 2),
    Sketcher.Constraint("Radius", 1, 7.0),
    Sketcher.Constraint("DistanceX", 1, 3, -1, 1, 150.0),
    Sketcher.Constraint("DistanceY", -1, 1, 1, 3, 150.0),
])
revolution7 = body41.newObject("PartDesign::Revolution", "Revolution006")
revolution7.Profile = sketch23
revolution7.ReferenceAxis = (sketch23, ["Axis0"])
revolution7.Angle = 360
doc.recompute()

body42 = doc.addObject("PartDesign::Body", "Body041")
body42.BaseFeature = body41
boolean25 = body2.newObject("PartDesign::Boolean", "Boolean024")
boolean25.Type = "Cut"
boolean25.addObjects([body42])
doc.recompute()

body43 = doc.addObject("PartDesign::Body", "Body042")
body43.BaseFeature = body41
boolean26 = body3.newObject("PartDesign::Boolean", "Boolean025")
boolean26.Type = "Cut"
boolean26.addObjects([body43])
doc.recompute()

body44 = doc.addObject("PartDesign::Body", "Body043")
body44.BaseFeature = body41
boolean27 = body10.newObject("PartDesign::Boolean", "Boolean026")
boolean27.Type = "Cut"
boolean27.addObjects([body44])
doc.recompute()

body45 = doc.addObject("PartDesign::Body", "Body044")
body45.BaseFeature = body41
boolean28 = body13.newObject("PartDesign::Boolean", "Boolean027")
boolean28.Type = "Cut"
boolean28.addObjects([body45])
doc.recompute()

boolean29 = body14.newObject("PartDesign::Boolean", "Boolean028")
boolean29.Type = "Cut"
boolean29.addObjects([body41])
body46 = doc.addObject("PartDesign::Body", "Body045")

sketch24 = body46.newObject("Sketcher::SketchObject", "Sketch023")
sketch24.AttachmentSupport = (doc.getObject("XZ_Plane045"), [""])
sketch24.MapMode = "FlatFace"
sketch24.AttachmentOffset = App.Placement(Vector(0, 0, -100), App.Rotation())
sketch24.addGeometry([
    Part.LineSegment(Vector(-157, -150, 0), Vector(-143, -150, 0)),
    Part.ArcOfCircle(Part.Circle(Vector(-150, -150, 0), Vector(0, 0, 1), 7), math.radians(0), math.radians(180)),
], False)
sketch24.addGeometry(Part.LineSegment(Vector(-143, -150, 0), Vector(-157, -150, 0)), True)
sketch24.addConstraint([
    Sketcher.Constraint("Coincident", 0, 1, 1, 2),
    Sketcher.Constraint("Coincident", 1, 1, 0, 2),
    Sketcher.Constraint("Horizontal", 0),
    Sketcher.Constraint("Horizontal", 2),
    Sketcher.Constraint("Coincident", 2, 1, 1, 1),
    Sketcher.Constraint("Horizontal", 1, 3, 0, 1),
    Sketcher.Constraint("Equal", 0, 2),
    Sketcher.Constraint("Radius", 1, 7.0),
    Sketcher.Constraint("DistanceX", 1, 3, -1, 1, 150.0),
    Sketcher.Constraint("DistanceY", 1, 3, -1, 1, 150.0),
])
revolution8 = body46.newObject("PartDesign::Revolution", "Revolution007")
revolution8.Profile = sketch24
revolution8.ReferenceAxis = (sketch24, ["Axis0"])
revolution8.Angle = 360
doc.recompute()

body47 = doc.addObject("PartDesign::Body", "Body046")
body47.BaseFeature = body46
boolean30 = body.newObject("PartDesign::Boolean", "Boolean029")
boolean30.Type = "Cut"
boolean30.addObjects([body47])
doc.recompute()

body48 = doc.addObject("PartDesign::Body", "Body047")
body48.BaseFeature = body46
boolean31 = body2.newObject("PartDesign::Boolean", "Boolean030")
boolean31.Type = "Cut"
boolean31.addObjects([body48])
doc.recompute()

boolean32 = body9.newObject("PartDesign::Boolean", "Boolean031")
boolean32.Type = "Cut"
boolean32.addObjects([body46])

doc.recompute()
